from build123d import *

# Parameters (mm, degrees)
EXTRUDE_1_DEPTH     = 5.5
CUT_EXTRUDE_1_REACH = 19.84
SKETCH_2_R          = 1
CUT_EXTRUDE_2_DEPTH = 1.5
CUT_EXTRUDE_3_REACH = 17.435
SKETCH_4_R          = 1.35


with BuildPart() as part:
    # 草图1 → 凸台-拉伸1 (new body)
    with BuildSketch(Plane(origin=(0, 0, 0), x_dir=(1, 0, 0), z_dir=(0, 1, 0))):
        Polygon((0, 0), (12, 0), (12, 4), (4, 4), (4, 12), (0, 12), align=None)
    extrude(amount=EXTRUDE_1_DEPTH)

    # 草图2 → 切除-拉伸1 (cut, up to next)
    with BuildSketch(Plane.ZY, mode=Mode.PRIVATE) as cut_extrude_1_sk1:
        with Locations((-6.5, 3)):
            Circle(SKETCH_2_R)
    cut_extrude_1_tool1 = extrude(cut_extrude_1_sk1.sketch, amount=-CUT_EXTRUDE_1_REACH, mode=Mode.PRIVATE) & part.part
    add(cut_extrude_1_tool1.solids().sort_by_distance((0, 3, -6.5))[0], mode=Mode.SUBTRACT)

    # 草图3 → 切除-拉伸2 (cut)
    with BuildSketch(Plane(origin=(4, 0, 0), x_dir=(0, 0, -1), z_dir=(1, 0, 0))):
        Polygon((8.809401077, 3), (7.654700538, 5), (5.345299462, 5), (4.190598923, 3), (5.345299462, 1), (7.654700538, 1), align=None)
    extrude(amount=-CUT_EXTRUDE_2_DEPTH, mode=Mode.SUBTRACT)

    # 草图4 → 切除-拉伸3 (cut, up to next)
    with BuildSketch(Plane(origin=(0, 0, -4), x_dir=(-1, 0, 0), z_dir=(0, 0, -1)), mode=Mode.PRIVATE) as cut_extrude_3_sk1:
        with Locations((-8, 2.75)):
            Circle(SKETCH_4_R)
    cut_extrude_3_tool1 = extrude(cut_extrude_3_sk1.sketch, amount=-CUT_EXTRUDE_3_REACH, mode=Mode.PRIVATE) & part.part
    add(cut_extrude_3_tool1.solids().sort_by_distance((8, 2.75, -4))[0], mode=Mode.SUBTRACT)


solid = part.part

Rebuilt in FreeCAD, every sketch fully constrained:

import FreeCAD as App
import Part
import Sketcher
from FreeCAD import Vector
Q = App.Units.Quantity


def add_polygon(sketch, points):
    """Adds a closed chain of lines whose ends are joined by coincident constraints."""
    first, n = sketch.GeometryCount, len(points)
    for a, b in zip(points, points[1:] + points[:1]):
        sketch.addGeometry(Part.LineSegment(App.Vector(*a, 0), App.Vector(*b, 0)), False)
    for i in range(n):
        sketch.addConstraint(Sketcher.Constraint("Coincident", first + i, 2, first + (i + 1) % n, 1))

doc = App.newDocument("Part")
body = doc.addObject("PartDesign::Body", "Body")

sketch1 = doc.addObject("Sketcher::SketchObject", "Sketch")
body.addObject(sketch1)
sketch1.AttachmentSupport = (doc.XZ_Plane, [""])
sketch1.MapMode = "FlatFace"
add_polygon(sketch1, [(0, 0), (12, 0), (12, -4), (4, -4), (4, -12), (0, -12)])
sketch1.addConstraint([
    Sketcher.Constraint("Horizontal", 0),
    Sketcher.Constraint("Vertical", 1),
    Sketcher.Constraint("Horizontal", 2),
    Sketcher.Constraint("Vertical", 3),
    Sketcher.Constraint("Horizontal", 4),
    Sketcher.Constraint("Vertical", 5),
    Sketcher.Constraint("Coincident", 5, 2, -1, 1),
    Sketcher.Constraint("Equal", 4, 1),
    Sketcher.Constraint("Equal", 2, 3),
    Sketcher.Constraint("DistanceX", 0, 1, 0, 2, Q("12 mm")),
    Sketcher.Constraint("DistanceX", 2, 2, 2, 1, Q("8 mm")),
])
pad1 = doc.addObject("PartDesign::Pad", "Pad")
body.addObject(pad1)
pad1.Profile = sketch1
pad1.Length = 5.5
pad1.Reversed = True

sketch2 = doc.addObject("Sketcher::SketchObject", "Sketch001")
body.addObject(sketch2)
sketch2.AttachmentSupport = (doc.YZ_Plane, [""])
sketch2.MapMode = "FlatFace"
sketch2.addGeometry(Part.Circle(Vector(3, -6.5, 0), Vector(0, 0, 1), 1), False)
sketch2.addConstraint([
    Sketcher.Constraint("Diameter", 0, Q("2 mm")),
    Sketcher.Constraint("DistanceX", -1, 1, 0, 3, Q("3 mm")),
    Sketcher.Constraint("DistanceY", 0, 3, -1, 1, Q("6.5 mm")),
])
pocket1 = doc.addObject("PartDesign::Pocket", "Pocket")
body.addObject(pocket1)
pocket1.Profile = sketch2
pocket1.Type = "UpToFirst"
pocket1.Reversed = True

sketch3 = doc.addObject("Sketcher::SketchObject", "Sketch002")
body.addObject(sketch3)
sketch3.AttachmentSupport = (doc.YZ_Plane, [""])
sketch3.MapMode = "FlatFace"
sketch3.AttachmentOffset = App.Placement(Vector(0, 0, 4), App.Rotation())
add_polygon(sketch3, [(3, -8.8), (5, -7.7), (5, -5.3), (3, -4.2), (1, -5.3), (1, -7.7)])
sketch3.addConstraint([
    Sketcher.Constraint("Vertical", 1),
    Sketcher.Constraint("Vertical", 4),
    Sketcher.Constraint("Parallel", 0, 3),
    Sketcher.Constraint("Parallel", 2, 5),
    Sketcher.Constraint("Horizontal", 1, 2, 3, 2),
    Sketcher.Constraint("Horizontal", 0, 2, 4, 2),
    Sketcher.Constraint("Vertical", 2, 2, 5, 2),
    Sketcher.Constraint("Angle", 0, Q("30 deg")),
    Sketcher.Constraint("DistanceX", -1, 1, 0, 2, Q("5 mm")),
    Sketcher.Constraint("DistanceX", -1, 1, 2, 2, Q("3 mm")),
    Sketcher.Constraint("DistanceY", 1, 1, 1, 2, Q("2.309401 mm")),
    Sketcher.Constraint("DistanceY", 0, 2, -1, 1, Q("7.654701 mm")),
])
pocket2 = doc.addObject("PartDesign::Pocket", "Pocket001")
body.addObject(pocket2)
pocket2.Profile = sketch3
pocket2.Length = 1.5

sketch4 = doc.addObject("Sketcher::SketchObject", "Sketch003")
body.addObject(sketch4)
sketch4.AttachmentSupport = (doc.XY_Plane, [""])
sketch4.MapMode = "FlatFace"
sketch4.AttachmentOffset = App.Placement(Vector(0, 0, -4), App.Rotation())
sketch4.addGeometry(Part.Circle(Vector(8, 2.8, 0), Vector(0, 0, 1), 1.4), False)
sketch4.addConstraint([
    Sketcher.Constraint("Diameter", 0, Q("2.7 mm")),
    Sketcher.Constraint("DistanceX", -1, 1, 0, 3, Q("8 mm")),
    Sketcher.Constraint("DistanceY", -1, 1, 0, 3, Q("2.75 mm")),
])
pocket3 = doc.addObject("PartDesign::Pocket", "Pocket002")
body.addObject(pocket3)
pocket3.Profile = sketch4
pocket3.Type = "UpToFirst"
pocket3.Reversed = True

doc.recompute()
